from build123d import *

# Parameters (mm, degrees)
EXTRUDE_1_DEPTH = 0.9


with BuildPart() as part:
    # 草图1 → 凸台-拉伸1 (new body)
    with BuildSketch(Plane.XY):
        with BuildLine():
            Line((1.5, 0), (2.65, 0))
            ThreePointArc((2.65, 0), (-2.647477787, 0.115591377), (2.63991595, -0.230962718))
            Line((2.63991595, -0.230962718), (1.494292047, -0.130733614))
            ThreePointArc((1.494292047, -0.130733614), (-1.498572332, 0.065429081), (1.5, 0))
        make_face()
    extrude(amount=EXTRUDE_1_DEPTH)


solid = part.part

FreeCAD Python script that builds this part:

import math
import FreeCAD as App
import Part
import Sketcher
Q = App.Units.Quantity

doc = App.newDocument("Part")
body = doc.addObject("PartDesign::Body", "Body")

# Sketch on XY plane
sketch1 = body.newObject("Sketcher::SketchObject", "Sketch")
sketch1.AttachmentSupport = (doc.getObject("XY_Plane"), [""])
sketch1.MapMode = "FlatFace"
sketch1.addGeometry([
    Part.LineSegment(App.Vector(1.5, 0, 0), App.Vector(2.65, 0, 0)),
    Part.ArcOfCircle(Part.Circle(App.Vector(0, 0, 0), App.Vector(0, 0, 1), 2.65), math.radians(0), math.radians(355)),
    Part.LineSegment(App.Vector(2.64, -0.23, 0), App.Vector(1.49, -0.13, 0)),
    Part.ArcOfCircle(Part.Circle(App.Vector(0, 0, 0), App.Vector(0, 0, 1), 1.5), math.radians(0), math.radians(355)),
], False)
sketch1.addConstraint([
    Sketcher.Constraint("Coincident", 0, 2, 1, 1),
    Sketcher.Constraint("Coincident", 1, 2, 2, 1),
    Sketcher.Constraint("Coincident", 2, 2, 3, 2),
    Sketcher.Constraint("Coincident", 3, 1, 0, 1),
    Sketcher.Constraint("Horizontal", 0),
    Sketcher.Constraint("Coincident", 1, 3, -1, 1),
    Sketcher.Constraint("Coincident", 3, 3, -1, 1),
    Sketcher.Constraint("PointOnObject", 0, 2, -1),
    Sketcher.Constraint("Radius", 3, 1.5),
    Sketcher.Constraint("Angle", 2, Q("175 deg")),
    Sketcher.Constraint("Radius", 1, 2.65),
    Sketcher.Constraint("DistanceX", -1, 1, 1, 2, 2.639916),
])
pad1 = body.newObject("PartDesign::Pad", "Pad")
pad1.Profile = sketch1
pad1.Length = 0.9

doc.recompute()
